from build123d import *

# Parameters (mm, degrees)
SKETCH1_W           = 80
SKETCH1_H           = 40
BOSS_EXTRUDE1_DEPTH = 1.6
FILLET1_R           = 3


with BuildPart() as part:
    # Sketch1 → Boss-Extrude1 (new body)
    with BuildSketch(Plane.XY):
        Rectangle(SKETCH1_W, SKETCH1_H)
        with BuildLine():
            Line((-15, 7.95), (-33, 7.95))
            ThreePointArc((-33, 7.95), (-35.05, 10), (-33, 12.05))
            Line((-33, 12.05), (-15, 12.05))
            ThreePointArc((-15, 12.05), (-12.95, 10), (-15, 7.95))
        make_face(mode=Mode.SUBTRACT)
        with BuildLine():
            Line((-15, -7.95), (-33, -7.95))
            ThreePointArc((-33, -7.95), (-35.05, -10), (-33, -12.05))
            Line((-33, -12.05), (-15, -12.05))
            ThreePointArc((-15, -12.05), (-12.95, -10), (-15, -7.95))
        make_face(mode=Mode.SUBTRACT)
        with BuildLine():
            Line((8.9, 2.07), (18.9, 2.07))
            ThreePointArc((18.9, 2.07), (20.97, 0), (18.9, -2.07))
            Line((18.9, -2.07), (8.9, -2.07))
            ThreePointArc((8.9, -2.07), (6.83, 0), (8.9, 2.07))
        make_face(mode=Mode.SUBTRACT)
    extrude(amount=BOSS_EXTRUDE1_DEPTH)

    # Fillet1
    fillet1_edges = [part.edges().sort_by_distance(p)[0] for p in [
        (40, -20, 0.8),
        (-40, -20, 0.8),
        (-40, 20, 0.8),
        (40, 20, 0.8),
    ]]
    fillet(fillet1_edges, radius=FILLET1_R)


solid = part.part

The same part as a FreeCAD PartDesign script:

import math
import FreeCAD as App
import Part
import Sketcher
from FreeCAD import Vector
Q = App.Units.Quantity


def edges_at(feature, points):
    """Names of the edges that pass closest to the given points."""
    edges = feature.Shape.Edges
    near = lambda p: min(range(len(edges)), key=lambda i: edges[i].distToShape(Part.Vertex(*p))[0])
    return sorted({f"Edge{near(p) + 1}" for p in points})

doc = App.newDocument("Part")
params = doc.addObject("Spreadsheet::Sheet", "Params")
for row, (alias, value) in enumerate([
    ("sketch1_width", "80 mm"),
    ("sketch1_width2", "18 mm"),
    ("sketch1_width3", "10 mm"),
    ("sketch1_height", "40 mm"),
    ("sketch1_radius", "2.05 mm"),
    ("pad1_length", "1.6 mm"),
    ("fillet_radius", "3 mm"),
], start=1):
    params.set(f"A{row}", alias)
    params.set(f"B{row}", "=" + value)
    params.setAlias(f"B{row}", alias)

body = doc.addObject("PartDesign::Body", "Body")

# Sketch on XY plane
sketch1 = body.newObject("Sketcher::SketchObject", "Sketch")
sketch1.AttachmentSupport = (doc.getObject("XY_Plane"), [""])
sketch1.MapMode = "FlatFace"
sketch1.addGeometry([
    Part.LineSegment(Vector(-40, 20, 0), Vector(-40, -20, 0)),  # 0
    Part.LineSegment(Vector(-40, -20, 0), Vector(40, -20, 0)),  # 1
    Part.LineSegment(Vector(40, -20, 0), Vector(40, 20, 0)),  # 2
    Part.LineSegment(Vector(40, 20, 0), Vector(-40, 20, 0)),  # 3
    Part.LineSegment(Vector(-33, -7.95, 0), Vector(-15, -7.95, 0)),  # 4
    Part.ArcOfCircle(Part.Circle(Vector(-15, -10, 0), Vector(0, 0, 1), 2.05), math.radians(-90), math.radians(90)),  # 5
    Part.LineSegment(Vector(-15, -12.05, 0), Vector(-33, -12.05, 0)),  # 6
    Part.ArcOfCircle(Part.Circle(Vector(-33, -10, 0), Vector(0, 0, 1), 2.05), math.radians(90), math.radians(270)),  # 7
    Part.ArcOfCircle(Part.Circle(Vector(-15, 10, 0), Vector(0, 0, 1), 2.05), math.radians(-90), math.radians(90)),  # 8
    Part.LineSegment(Vector(-15, 7.95, 0), Vector(-33, 7.95, 0)),  # 9
    Part.ArcOfCircle(Part.Circle(Vector(-33, 10, 0), Vector(0, 0, 1), 2.05), math.radians(90), math.radians(270)),  # 10
    Part.LineSegment(Vector(-33, 12.05, 0), Vector(-15, 12.05, 0)),  # 11
    Part.ArcOfCircle(Part.Circle(Vector(8.9, 0, 0), Vector(0, 0, 1), 2.07), math.radians(90), math.radians(270)),  # 12
    Part.LineSegment(Vector(8.9, 2.07, 0), Vector(18.9, 2.07, 0)),  # 13
    Part.ArcOfCircle(Part.Circle(Vector(18.9, 0, 0), Vector(0, 0, 1), 2.07), math.radians(-90), math.radians(90)),  # 14
    Part.LineSegment(Vector(18.9, -2.07, 0), Vector(8.9, -2.07, 0)),  # 15
], False)
sketch1.addConstraint([
    Sketcher.Constraint("Coincident", 0, 2, 1, 1),
    Sketcher.Constraint("Coincident", 1, 2, 2, 1),
    Sketcher.Constraint("Coincident", 2, 2, 3, 1),
    Sketcher.Constraint("Coincident", 3, 2, 0, 1),
    Sketcher.Constraint("Tangent", 4, 2, 5, 2),
    Sketcher.Constraint("Tangent", 5, 1, 6, 1),
    Sketcher.Constraint("Tangent", 6, 2, 7, 2),
    Sketcher.Constraint("Tangent", 7, 1, 4, 1),
    Sketcher.Constraint("Tangent", 8, 1, 9, 1),
    Sketcher.Constraint("Tangent", 9, 2, 10, 2),
    Sketcher.Constraint("Tangent", 10, 1, 11, 1),
    Sketcher.Constraint("Tangent", 11, 2, 8, 2),
    Sketcher.Constraint("Tangent", 12, 1, 13, 1),
    Sketcher.Constraint("Tangent", 13, 2, 14, 2),
    Sketcher.Constraint("Tangent", 14, 1, 15, 1),
    Sketcher.Constraint("Tangent", 15, 2, 12, 2),
    Sketcher.Constraint("Vertical", 0),
    Sketcher.Constraint("Horizontal", 1),
    Sketcher.Constraint("Vertical", 2),
    Sketcher.Constraint("Horizontal", 3),
    Sketcher.Constraint("Horizontal", 4),
    Sketcher.Constraint("Horizontal", 6),
    Sketcher.Constraint("Horizontal", 9),
    Sketcher.Constraint("Horizontal", 11),
    Sketcher.Constraint("Horizontal", 13),
    Sketcher.Constraint("Horizontal", 15),
    Sketcher.Constraint("Equal", 7, 8),
    Sketcher.Constraint("Symmetric", 0, 2, 2, 2, -1, 1),
    Sketcher.Constraint("Symmetric", 5, 3, 8, 3, -1),
    Sketcher.Constraint("PointOnObject", 12, 3, -1),
    Sketcher.Constraint("Vertical", 7, 3, 10, 3),
    Sketcher.Constraint("DistanceX", 1, 1, 1, 2, Q("80 mm")),
    Sketcher.Constraint("DistanceX", 4, 1, 4, 2, Q("18 mm")),
    Sketcher.Constraint("DistanceX", 13, 1, 13, 2, Q("10 mm")),
    Sketcher.Constraint("DistanceY", 0, 2, 0, 1, Q("40 mm")),
    Sketcher.Constraint("Radius", 5, Q("2.05 mm")),
    Sketcher.Constraint("Radius", 12, Q("2.07 mm")),
    Sketcher.Constraint("DistanceX", 5, 3, -1, 1, Q("15 mm")),
    Sketcher.Constraint("DistanceY", 5, 3, -1, 1, Q("10 mm")),
    Sketcher.Constraint("DistanceX", -1, 1, 12, 3, Q("8.9 mm")),
])
sketch1.setExpression("Constraints[31]", "Params.sketch1_width")
sketch1.setExpression("Constraints[32]", "Params.sketch1_width2")
sketch1.setExpression("Constraints[33]", "Params.sketch1_width3")
sketch1.setExpression("Constraints[34]", "Params.sketch1_height")
sketch1.setExpression("Constraints[35]", "Params.sketch1_radius")
pad1 = body.newObject("PartDesign::Pad", "Pad")
pad1.Profile = sketch1
pad1.setExpression("Length", "Params.pad1_length")
doc.recompute()

fillet = body.newObject("PartDesign::Fillet", "Fillet")
fillet.Base = (pad1, edges_at(pad1, [
    (40, -20, 0.8),
    (-40, -20, 0.8),
    (-40, 20, 0.8),
    (40, 20, 0.8),
]))
fillet.setExpression("Radius", "Params.fillet_radius")

doc.recompute()
